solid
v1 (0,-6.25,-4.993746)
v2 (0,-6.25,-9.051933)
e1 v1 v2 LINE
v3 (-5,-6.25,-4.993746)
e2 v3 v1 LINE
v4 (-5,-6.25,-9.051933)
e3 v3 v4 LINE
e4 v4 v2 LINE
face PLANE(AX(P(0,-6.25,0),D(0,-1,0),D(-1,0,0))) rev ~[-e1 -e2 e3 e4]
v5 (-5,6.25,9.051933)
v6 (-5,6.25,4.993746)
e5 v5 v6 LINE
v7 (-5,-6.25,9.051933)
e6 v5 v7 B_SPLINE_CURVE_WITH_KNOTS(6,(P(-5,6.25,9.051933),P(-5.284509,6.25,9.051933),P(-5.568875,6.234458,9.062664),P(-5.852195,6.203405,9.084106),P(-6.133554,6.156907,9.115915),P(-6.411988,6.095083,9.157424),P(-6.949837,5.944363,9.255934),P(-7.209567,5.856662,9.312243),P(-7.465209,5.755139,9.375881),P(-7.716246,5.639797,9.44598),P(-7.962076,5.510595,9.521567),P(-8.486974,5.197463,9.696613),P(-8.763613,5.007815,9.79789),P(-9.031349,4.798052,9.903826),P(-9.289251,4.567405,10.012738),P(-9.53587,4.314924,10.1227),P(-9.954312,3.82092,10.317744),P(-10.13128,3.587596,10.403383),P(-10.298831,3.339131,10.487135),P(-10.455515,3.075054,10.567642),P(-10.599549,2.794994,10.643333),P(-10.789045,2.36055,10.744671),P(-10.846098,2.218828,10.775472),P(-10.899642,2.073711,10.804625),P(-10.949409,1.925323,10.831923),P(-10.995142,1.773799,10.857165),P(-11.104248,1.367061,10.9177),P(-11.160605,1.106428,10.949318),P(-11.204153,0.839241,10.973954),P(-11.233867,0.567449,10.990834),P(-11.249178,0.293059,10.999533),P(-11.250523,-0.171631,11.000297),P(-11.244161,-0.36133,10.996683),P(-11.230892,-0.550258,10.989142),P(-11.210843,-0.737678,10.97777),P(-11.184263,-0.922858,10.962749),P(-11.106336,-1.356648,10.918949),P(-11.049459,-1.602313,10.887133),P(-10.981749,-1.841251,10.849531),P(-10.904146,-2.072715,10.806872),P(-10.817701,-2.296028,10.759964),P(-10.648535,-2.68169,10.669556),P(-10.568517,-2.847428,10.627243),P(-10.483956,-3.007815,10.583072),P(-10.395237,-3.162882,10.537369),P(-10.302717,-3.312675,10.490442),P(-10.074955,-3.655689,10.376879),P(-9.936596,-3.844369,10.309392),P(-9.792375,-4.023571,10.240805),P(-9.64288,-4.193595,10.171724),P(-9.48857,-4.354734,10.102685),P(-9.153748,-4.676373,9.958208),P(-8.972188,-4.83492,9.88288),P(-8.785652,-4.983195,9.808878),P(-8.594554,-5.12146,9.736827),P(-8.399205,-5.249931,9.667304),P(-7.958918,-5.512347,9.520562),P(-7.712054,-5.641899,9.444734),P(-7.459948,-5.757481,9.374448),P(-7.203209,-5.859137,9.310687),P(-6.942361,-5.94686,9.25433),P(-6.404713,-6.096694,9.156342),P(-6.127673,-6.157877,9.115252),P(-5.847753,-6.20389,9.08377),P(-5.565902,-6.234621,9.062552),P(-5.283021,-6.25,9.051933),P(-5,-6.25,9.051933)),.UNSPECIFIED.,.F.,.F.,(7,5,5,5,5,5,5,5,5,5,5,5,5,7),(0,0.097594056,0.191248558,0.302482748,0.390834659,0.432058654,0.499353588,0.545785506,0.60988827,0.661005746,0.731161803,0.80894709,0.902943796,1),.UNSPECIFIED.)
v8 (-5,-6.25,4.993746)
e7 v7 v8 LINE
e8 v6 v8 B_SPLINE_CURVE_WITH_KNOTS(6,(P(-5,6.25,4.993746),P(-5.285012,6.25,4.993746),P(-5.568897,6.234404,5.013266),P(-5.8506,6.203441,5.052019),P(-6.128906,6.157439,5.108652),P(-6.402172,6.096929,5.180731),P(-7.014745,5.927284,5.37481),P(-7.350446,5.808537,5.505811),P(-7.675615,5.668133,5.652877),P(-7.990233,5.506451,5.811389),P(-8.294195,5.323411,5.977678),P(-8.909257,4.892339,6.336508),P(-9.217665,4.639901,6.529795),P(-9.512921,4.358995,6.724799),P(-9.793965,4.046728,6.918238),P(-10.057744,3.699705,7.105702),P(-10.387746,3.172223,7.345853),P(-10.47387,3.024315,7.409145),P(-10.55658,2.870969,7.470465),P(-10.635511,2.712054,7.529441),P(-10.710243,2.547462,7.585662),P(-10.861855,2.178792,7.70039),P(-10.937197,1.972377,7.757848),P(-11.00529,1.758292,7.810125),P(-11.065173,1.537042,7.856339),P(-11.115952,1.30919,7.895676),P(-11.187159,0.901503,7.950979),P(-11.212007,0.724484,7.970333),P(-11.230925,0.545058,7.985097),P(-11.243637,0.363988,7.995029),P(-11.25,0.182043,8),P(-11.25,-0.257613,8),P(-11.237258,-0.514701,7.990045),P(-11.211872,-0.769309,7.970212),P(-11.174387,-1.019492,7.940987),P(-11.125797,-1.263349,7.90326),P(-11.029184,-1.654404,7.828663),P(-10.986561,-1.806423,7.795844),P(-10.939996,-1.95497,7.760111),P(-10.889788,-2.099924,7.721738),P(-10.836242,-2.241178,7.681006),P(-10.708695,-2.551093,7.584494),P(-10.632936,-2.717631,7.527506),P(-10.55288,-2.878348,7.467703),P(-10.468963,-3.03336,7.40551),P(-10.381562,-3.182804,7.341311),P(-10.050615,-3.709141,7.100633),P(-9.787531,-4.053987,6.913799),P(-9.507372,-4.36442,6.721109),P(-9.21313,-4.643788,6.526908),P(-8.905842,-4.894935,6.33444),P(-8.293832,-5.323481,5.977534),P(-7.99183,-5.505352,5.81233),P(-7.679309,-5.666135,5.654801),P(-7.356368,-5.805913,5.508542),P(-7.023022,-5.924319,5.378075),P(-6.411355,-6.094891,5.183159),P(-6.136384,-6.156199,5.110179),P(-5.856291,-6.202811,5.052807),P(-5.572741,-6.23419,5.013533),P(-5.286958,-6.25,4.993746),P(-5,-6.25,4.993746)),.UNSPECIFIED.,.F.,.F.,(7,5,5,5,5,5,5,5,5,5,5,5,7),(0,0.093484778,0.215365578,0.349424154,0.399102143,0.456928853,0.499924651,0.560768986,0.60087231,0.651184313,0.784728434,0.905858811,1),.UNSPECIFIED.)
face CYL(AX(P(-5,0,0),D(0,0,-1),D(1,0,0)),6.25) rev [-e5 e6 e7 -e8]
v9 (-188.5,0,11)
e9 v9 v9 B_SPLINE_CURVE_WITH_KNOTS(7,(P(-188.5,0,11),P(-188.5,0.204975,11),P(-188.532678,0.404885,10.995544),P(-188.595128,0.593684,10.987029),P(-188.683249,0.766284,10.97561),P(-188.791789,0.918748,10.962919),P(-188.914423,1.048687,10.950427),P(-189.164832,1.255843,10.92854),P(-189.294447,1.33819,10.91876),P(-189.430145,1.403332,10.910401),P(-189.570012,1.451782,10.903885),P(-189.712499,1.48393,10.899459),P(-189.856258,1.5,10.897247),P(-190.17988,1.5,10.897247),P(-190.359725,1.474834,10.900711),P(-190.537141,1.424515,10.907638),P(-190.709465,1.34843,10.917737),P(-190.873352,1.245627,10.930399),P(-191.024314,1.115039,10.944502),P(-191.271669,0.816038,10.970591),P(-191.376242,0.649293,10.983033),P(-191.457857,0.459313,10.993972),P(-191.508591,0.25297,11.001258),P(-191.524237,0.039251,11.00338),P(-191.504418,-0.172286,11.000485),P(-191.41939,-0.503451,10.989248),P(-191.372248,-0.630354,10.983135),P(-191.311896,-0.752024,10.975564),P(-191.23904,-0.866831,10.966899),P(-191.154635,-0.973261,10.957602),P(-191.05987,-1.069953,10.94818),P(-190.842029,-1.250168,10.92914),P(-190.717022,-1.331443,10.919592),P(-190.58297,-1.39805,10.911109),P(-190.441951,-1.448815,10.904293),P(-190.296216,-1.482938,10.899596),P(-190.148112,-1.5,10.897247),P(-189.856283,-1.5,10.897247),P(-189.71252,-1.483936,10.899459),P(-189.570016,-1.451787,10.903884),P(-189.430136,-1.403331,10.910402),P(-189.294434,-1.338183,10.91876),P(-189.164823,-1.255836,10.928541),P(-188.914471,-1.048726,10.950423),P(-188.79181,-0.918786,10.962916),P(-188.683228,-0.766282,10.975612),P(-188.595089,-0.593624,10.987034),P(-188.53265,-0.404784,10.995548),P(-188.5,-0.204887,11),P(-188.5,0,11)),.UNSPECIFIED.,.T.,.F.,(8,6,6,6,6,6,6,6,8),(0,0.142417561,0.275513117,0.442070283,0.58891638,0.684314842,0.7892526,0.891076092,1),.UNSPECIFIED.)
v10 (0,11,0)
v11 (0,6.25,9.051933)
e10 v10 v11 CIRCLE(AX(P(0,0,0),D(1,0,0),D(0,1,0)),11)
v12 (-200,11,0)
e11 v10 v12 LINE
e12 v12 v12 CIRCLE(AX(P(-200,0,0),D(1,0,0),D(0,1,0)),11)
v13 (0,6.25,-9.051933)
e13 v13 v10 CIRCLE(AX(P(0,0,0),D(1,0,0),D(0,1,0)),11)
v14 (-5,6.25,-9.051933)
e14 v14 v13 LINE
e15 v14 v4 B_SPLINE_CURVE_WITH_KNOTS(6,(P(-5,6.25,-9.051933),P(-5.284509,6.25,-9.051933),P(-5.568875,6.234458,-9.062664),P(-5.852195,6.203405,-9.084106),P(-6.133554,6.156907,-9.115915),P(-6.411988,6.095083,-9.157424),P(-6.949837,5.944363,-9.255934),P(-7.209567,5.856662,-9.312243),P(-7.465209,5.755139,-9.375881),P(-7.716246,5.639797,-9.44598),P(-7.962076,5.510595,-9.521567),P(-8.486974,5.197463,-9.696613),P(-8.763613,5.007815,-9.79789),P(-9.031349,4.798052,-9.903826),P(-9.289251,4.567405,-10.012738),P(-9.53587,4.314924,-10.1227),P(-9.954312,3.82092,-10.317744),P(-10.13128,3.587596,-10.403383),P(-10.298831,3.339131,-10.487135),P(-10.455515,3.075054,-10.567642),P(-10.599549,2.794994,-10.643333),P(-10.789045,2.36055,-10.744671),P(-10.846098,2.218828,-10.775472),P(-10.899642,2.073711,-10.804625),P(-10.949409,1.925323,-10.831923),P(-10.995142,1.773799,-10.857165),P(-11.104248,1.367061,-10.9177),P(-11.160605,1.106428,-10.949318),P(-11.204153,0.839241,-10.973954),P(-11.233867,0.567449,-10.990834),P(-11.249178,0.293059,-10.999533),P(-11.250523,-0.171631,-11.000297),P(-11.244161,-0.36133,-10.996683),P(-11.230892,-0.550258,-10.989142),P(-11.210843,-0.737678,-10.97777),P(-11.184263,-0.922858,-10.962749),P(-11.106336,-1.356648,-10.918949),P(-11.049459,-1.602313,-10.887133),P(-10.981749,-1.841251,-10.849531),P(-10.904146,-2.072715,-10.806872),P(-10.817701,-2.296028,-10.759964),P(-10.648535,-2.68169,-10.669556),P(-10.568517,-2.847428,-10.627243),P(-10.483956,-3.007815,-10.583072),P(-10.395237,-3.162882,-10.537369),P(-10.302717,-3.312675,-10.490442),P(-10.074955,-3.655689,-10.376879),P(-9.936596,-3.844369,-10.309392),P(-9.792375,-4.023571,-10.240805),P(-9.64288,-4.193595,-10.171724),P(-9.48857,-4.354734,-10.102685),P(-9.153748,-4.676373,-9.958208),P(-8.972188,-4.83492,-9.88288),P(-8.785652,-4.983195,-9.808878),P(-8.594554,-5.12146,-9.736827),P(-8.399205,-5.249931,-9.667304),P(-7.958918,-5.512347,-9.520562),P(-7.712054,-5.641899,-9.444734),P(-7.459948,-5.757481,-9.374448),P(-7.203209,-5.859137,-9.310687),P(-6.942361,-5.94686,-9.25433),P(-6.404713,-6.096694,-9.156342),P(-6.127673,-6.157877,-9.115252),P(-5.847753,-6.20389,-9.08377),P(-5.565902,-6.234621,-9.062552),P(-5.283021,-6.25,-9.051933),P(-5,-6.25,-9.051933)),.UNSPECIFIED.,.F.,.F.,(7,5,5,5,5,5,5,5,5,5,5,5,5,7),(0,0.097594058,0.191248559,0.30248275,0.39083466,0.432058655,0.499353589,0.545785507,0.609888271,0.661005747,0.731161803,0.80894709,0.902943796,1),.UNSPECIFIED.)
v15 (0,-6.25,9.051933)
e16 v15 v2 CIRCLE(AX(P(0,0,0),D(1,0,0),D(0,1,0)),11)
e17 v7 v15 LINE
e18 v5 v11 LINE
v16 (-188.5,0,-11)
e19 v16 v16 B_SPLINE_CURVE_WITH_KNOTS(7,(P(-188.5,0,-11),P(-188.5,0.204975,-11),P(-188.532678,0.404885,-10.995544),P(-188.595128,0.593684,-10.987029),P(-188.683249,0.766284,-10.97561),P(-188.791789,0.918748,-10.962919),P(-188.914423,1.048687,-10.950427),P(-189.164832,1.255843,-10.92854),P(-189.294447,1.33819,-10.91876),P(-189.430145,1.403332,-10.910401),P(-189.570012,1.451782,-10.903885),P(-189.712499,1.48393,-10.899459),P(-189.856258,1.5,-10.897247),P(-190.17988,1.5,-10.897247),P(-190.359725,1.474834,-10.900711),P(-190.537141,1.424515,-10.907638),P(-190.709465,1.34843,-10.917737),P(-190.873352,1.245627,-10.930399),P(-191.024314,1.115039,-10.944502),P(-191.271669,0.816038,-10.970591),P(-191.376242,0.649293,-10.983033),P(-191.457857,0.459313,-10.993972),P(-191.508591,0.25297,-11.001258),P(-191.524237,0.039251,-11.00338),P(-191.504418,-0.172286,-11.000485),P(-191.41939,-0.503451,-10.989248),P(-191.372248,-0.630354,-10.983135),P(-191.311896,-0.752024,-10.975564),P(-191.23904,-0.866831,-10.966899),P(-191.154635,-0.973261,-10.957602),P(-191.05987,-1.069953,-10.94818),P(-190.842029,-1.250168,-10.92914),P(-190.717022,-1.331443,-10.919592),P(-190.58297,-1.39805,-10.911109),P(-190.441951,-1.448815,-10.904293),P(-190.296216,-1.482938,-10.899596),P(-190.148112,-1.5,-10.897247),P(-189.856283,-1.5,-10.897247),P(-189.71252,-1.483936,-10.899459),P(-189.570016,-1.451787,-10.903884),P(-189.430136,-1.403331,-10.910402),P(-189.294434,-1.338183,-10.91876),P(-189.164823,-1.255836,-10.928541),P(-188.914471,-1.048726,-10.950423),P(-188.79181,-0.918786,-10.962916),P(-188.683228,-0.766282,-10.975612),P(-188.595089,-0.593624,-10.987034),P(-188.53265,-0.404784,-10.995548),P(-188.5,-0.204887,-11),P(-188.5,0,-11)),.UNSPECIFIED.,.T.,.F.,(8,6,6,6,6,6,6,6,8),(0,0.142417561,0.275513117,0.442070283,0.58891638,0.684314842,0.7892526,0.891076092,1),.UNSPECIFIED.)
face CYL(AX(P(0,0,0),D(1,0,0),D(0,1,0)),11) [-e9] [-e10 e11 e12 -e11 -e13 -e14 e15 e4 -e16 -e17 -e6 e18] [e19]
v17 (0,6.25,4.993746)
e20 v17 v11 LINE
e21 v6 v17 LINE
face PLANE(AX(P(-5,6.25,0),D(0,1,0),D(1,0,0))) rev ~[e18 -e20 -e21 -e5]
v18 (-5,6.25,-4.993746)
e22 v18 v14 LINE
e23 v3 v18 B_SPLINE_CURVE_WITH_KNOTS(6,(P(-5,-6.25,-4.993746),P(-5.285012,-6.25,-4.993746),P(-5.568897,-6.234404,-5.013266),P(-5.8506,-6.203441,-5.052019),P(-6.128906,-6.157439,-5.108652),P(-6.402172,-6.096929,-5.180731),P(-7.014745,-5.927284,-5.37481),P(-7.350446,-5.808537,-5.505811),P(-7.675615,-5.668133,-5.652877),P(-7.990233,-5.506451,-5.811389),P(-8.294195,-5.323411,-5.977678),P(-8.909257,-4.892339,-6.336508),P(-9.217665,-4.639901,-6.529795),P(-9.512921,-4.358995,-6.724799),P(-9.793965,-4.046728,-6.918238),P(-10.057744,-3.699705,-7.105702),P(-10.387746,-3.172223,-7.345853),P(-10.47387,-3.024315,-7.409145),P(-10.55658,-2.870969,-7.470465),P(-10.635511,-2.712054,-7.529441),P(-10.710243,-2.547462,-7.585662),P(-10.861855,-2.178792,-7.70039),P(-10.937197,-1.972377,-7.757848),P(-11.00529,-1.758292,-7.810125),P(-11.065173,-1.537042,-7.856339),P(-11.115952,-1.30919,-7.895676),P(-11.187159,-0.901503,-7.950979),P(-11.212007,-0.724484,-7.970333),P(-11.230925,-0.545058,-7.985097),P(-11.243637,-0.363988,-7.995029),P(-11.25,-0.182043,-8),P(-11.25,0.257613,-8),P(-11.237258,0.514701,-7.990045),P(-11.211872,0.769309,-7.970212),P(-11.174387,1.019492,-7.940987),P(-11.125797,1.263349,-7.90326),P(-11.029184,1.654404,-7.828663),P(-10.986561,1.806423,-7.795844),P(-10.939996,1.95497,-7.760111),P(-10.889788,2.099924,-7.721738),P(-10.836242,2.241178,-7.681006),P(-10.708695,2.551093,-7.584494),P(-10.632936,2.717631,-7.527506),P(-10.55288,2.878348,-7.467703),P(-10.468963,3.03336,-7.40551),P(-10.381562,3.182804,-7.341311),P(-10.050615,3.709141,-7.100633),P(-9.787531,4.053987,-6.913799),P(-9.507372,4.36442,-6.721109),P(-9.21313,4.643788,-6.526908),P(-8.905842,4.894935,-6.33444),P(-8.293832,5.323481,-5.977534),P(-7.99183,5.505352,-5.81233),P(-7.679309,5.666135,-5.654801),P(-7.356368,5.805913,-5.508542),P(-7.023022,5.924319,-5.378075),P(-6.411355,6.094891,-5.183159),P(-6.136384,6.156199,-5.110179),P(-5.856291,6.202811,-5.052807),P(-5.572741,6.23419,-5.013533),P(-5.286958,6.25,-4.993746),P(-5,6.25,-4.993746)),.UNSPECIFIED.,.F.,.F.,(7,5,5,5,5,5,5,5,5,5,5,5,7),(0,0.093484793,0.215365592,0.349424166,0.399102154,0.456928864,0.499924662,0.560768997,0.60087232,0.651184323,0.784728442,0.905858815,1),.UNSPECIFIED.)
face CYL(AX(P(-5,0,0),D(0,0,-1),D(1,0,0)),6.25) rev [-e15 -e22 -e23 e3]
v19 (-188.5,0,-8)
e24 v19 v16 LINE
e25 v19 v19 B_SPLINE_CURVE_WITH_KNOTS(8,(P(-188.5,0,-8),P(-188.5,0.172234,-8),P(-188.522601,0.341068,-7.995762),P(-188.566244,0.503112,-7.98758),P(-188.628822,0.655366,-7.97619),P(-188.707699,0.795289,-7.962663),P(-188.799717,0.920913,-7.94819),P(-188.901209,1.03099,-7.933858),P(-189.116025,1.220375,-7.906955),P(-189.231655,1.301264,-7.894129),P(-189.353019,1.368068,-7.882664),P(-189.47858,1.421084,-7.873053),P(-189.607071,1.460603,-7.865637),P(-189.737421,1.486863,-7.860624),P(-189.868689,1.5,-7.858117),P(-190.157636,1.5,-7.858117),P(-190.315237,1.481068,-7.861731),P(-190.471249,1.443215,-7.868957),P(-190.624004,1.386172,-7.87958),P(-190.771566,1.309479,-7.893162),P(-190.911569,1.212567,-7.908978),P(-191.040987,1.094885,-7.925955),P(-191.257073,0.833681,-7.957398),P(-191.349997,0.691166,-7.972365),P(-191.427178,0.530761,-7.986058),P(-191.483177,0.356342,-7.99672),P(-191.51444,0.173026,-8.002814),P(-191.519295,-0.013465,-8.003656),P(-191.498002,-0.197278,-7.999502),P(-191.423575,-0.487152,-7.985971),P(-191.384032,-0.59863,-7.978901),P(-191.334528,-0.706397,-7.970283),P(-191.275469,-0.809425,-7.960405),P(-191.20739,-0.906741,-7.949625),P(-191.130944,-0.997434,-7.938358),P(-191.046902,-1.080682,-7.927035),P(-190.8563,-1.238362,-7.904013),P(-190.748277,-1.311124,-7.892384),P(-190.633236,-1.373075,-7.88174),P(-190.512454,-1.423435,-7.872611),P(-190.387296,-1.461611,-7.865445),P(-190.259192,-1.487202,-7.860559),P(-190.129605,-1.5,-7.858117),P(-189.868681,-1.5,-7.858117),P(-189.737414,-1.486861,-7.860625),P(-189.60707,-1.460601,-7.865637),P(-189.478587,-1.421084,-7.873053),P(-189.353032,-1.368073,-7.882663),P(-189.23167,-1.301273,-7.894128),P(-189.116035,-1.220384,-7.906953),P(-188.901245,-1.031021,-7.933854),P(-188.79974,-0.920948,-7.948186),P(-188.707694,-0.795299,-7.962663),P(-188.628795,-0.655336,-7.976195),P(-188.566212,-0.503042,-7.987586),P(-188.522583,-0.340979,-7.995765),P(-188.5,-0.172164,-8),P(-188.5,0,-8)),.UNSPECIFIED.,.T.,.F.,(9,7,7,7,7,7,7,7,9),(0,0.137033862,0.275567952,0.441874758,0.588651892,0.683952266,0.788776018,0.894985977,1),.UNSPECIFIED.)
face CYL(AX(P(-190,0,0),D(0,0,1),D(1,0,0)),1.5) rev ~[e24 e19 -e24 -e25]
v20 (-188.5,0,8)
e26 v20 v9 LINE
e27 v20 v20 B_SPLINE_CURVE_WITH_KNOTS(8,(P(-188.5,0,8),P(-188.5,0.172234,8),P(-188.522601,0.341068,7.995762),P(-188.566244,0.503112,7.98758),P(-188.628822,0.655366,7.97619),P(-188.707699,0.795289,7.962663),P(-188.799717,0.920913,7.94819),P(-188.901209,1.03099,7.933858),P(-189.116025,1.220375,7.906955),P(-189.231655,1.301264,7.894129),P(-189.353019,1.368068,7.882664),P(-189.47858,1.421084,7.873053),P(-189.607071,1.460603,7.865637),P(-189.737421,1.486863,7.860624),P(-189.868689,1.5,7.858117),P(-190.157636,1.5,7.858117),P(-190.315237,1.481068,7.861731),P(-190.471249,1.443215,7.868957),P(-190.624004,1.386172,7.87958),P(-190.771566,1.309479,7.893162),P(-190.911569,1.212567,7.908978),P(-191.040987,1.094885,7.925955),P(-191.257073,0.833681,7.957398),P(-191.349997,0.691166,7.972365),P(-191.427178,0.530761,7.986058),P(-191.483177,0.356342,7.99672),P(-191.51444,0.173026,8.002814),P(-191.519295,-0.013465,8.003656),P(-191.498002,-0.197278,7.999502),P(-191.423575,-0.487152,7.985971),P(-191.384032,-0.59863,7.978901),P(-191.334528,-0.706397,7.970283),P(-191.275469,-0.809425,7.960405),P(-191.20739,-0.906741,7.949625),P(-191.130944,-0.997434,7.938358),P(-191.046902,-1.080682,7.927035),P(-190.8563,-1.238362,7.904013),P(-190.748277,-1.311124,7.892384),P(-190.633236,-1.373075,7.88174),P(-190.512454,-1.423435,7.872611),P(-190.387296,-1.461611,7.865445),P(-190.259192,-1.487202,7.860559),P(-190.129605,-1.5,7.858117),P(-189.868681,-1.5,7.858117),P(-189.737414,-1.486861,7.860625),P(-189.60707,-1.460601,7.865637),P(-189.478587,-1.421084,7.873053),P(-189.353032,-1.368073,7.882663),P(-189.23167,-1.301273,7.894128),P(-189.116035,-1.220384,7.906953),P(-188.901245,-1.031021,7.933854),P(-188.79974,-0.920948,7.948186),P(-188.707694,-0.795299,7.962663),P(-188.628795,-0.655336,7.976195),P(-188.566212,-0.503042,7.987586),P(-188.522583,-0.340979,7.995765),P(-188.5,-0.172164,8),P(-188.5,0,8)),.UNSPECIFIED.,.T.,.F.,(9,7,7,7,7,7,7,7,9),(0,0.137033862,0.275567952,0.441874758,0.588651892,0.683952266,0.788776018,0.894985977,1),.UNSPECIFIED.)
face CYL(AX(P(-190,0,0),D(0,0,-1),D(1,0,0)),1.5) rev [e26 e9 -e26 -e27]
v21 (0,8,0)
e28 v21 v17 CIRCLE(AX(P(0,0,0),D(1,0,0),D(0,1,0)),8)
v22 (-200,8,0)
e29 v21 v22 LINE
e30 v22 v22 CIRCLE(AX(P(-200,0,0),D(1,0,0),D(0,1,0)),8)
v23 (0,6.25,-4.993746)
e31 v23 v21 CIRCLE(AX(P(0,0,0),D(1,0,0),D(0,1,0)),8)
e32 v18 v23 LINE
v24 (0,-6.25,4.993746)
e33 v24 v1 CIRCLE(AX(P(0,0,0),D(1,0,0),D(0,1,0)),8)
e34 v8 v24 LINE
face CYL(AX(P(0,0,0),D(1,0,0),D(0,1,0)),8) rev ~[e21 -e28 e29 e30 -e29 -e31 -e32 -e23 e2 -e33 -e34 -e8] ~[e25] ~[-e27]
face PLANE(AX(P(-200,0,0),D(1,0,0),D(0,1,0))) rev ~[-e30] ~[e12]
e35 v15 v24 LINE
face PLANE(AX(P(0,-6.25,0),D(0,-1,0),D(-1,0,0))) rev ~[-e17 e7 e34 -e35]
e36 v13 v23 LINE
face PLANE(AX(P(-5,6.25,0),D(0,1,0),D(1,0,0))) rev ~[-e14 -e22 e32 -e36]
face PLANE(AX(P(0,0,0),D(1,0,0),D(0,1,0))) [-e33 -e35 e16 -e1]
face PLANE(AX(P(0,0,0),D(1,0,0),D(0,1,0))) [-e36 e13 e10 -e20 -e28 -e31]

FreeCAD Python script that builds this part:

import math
import FreeCAD as App
import Part
import Sketcher

doc = App.newDocument("Part")
body = doc.addObject("PartDesign::Body", "Body")

# Sketch on YZ plane
sketch1 = doc.addObject("Sketcher::SketchObject", "Sketch")
body.addObject(sketch1)
sketch1.AttachmentSupport = (doc.YZ_Plane, [""])
sketch1.MapMode = "FlatFace"
sketch1.addGeometry([
    Part.Circle(App.Vector(0, 0, 0), App.Vector(0, 0, 1), 11),
    Part.Circle(App.Vector(0, 0, 0), App.Vector(0, 0, 1), 8),
], False)
sketch1.addConstraint([
    Sketcher.Constraint("Coincident", 0, 3, -1, 1),
    Sketcher.Constraint("Coincident", 1, 3, -1, 1),
    Sketcher.Constraint("Diameter", 0, 22.0),
    Sketcher.Constraint("Diameter", 1, 16.0),
])
pad1 = doc.addObject("PartDesign::Pad", "Pad")
body.addObject(pad1)
pad1.Profile = sketch1
pad1.Length = 200
pad1.Reversed = True

# Sketch on XY plane
sketch2 = doc.addObject("Sketcher::SketchObject", "Sketch001")
body.addObject(sketch2)
sketch2.AttachmentSupport = (doc.XY_Plane, [""])
sketch2.MapMode = "FlatFace"
sketch2.addGeometry([
    Part.LineSegment(App.Vector(0, -6, 0), App.Vector(0, 6, 0)),
    Part.LineSegment(App.Vector(0, 6, 0), App.Vector(-5, 6, 0)),
    Part.LineSegment(App.Vector(-5, 6, 0), App.Vector(-5, -6, 0)),
    Part.LineSegment(App.Vector(-5, -6, 0), App.Vector(0, -6, 0)),
], False)
sketch2.addConstraint([
    Sketcher.Constraint("Coincident", 0, 2, 1, 1),
    Sketcher.Constraint("Coincident", 1, 2, 2, 1),
    Sketcher.Constraint("Coincident", 2, 2, 3, 1),
    Sketcher.Constraint("Coincident", 3, 2, 0, 1),
    Sketcher.Constraint("Vertical", 0),
    Sketcher.Constraint("Horizontal", 1),
    Sketcher.Constraint("Vertical", 2),
    Sketcher.Constraint("Horizontal", 3),
    Sketcher.Constraint("Symmetric", 0, 2, 3, 2, -1, 1),
    Sketcher.Constraint("DistanceX", 1, 2, 1, 1, 5.0),
    Sketcher.Constraint("DistanceY", -1, 1, 0, 2, 6.25),
])
pocket1 = doc.addObject("PartDesign::Pocket", "Pocket")
body.addObject(pocket1)
pocket1.Profile = sketch2
pocket1.Length = 200
pocket1.Midplane = True

# Sketch on XY plane
sketch3 = doc.addObject("Sketcher::SketchObject", "Sketch002")
body.addObject(sketch3)
sketch3.AttachmentSupport = (doc.XY_Plane, [""])
sketch3.MapMode = "FlatFace"
sketch3.addGeometry([
    Part.ArcOfCircle(Part.Circle(App.Vector(-5, 0, 0), App.Vector(0, 0, 1), 6), math.radians(90), math.radians(270)),
    Part.LineSegment(App.Vector(-5, -6, 0), App.Vector(-5, 6, 0)),
], False)
sketch3.addConstraint([
    Sketcher.Constraint("Coincident", 0, 1, 1, 2),
    Sketcher.Constraint("Coincident", 1, 1, 0, 2),
    Sketcher.Constraint("Vertical", 1),
    Sketcher.Constraint("PointOnObject", 0, 3, -1),
    Sketcher.Constraint("Radius", 0, 6.25),
    Sketcher.Constraint("DistanceX", 0, 3, -1, 1, 5.0),
    Sketcher.Constraint("DistanceX", 0, 1, -1, 1, 5.0),
])
pocket2 = doc.addObject("PartDesign::Pocket", "Pocket001")
body.addObject(pocket2)
pocket2.Profile = sketch3
pocket2.Length = 200
pocket2.Midplane = True

# Sketch on XY plane
sketch4 = doc.addObject("Sketcher::SketchObject", "Sketch003")
body.addObject(sketch4)
sketch4.AttachmentSupport = (doc.XY_Plane, [""])
sketch4.MapMode = "FlatFace"
sketch4.addGeometry(Part.Circle(App.Vector(-190, 0, 0), App.Vector(0, 0, 1), 1.5), False)
sketch4.addConstraint([
    Sketcher.Constraint("PointOnObject", 0, 3, -1),
    Sketcher.Constraint("Diameter", 0, 3.0),
    Sketcher.Constraint("DistanceX", 0, 3, -1, 1, 190.0),
])
pocket3 = doc.addObject("PartDesign::Pocket", "Pocket002")
body.addObject(pocket3)
pocket3.Profile = sketch4
pocket3.Length = 200
pocket3.Midplane = True

doc.recompute()
